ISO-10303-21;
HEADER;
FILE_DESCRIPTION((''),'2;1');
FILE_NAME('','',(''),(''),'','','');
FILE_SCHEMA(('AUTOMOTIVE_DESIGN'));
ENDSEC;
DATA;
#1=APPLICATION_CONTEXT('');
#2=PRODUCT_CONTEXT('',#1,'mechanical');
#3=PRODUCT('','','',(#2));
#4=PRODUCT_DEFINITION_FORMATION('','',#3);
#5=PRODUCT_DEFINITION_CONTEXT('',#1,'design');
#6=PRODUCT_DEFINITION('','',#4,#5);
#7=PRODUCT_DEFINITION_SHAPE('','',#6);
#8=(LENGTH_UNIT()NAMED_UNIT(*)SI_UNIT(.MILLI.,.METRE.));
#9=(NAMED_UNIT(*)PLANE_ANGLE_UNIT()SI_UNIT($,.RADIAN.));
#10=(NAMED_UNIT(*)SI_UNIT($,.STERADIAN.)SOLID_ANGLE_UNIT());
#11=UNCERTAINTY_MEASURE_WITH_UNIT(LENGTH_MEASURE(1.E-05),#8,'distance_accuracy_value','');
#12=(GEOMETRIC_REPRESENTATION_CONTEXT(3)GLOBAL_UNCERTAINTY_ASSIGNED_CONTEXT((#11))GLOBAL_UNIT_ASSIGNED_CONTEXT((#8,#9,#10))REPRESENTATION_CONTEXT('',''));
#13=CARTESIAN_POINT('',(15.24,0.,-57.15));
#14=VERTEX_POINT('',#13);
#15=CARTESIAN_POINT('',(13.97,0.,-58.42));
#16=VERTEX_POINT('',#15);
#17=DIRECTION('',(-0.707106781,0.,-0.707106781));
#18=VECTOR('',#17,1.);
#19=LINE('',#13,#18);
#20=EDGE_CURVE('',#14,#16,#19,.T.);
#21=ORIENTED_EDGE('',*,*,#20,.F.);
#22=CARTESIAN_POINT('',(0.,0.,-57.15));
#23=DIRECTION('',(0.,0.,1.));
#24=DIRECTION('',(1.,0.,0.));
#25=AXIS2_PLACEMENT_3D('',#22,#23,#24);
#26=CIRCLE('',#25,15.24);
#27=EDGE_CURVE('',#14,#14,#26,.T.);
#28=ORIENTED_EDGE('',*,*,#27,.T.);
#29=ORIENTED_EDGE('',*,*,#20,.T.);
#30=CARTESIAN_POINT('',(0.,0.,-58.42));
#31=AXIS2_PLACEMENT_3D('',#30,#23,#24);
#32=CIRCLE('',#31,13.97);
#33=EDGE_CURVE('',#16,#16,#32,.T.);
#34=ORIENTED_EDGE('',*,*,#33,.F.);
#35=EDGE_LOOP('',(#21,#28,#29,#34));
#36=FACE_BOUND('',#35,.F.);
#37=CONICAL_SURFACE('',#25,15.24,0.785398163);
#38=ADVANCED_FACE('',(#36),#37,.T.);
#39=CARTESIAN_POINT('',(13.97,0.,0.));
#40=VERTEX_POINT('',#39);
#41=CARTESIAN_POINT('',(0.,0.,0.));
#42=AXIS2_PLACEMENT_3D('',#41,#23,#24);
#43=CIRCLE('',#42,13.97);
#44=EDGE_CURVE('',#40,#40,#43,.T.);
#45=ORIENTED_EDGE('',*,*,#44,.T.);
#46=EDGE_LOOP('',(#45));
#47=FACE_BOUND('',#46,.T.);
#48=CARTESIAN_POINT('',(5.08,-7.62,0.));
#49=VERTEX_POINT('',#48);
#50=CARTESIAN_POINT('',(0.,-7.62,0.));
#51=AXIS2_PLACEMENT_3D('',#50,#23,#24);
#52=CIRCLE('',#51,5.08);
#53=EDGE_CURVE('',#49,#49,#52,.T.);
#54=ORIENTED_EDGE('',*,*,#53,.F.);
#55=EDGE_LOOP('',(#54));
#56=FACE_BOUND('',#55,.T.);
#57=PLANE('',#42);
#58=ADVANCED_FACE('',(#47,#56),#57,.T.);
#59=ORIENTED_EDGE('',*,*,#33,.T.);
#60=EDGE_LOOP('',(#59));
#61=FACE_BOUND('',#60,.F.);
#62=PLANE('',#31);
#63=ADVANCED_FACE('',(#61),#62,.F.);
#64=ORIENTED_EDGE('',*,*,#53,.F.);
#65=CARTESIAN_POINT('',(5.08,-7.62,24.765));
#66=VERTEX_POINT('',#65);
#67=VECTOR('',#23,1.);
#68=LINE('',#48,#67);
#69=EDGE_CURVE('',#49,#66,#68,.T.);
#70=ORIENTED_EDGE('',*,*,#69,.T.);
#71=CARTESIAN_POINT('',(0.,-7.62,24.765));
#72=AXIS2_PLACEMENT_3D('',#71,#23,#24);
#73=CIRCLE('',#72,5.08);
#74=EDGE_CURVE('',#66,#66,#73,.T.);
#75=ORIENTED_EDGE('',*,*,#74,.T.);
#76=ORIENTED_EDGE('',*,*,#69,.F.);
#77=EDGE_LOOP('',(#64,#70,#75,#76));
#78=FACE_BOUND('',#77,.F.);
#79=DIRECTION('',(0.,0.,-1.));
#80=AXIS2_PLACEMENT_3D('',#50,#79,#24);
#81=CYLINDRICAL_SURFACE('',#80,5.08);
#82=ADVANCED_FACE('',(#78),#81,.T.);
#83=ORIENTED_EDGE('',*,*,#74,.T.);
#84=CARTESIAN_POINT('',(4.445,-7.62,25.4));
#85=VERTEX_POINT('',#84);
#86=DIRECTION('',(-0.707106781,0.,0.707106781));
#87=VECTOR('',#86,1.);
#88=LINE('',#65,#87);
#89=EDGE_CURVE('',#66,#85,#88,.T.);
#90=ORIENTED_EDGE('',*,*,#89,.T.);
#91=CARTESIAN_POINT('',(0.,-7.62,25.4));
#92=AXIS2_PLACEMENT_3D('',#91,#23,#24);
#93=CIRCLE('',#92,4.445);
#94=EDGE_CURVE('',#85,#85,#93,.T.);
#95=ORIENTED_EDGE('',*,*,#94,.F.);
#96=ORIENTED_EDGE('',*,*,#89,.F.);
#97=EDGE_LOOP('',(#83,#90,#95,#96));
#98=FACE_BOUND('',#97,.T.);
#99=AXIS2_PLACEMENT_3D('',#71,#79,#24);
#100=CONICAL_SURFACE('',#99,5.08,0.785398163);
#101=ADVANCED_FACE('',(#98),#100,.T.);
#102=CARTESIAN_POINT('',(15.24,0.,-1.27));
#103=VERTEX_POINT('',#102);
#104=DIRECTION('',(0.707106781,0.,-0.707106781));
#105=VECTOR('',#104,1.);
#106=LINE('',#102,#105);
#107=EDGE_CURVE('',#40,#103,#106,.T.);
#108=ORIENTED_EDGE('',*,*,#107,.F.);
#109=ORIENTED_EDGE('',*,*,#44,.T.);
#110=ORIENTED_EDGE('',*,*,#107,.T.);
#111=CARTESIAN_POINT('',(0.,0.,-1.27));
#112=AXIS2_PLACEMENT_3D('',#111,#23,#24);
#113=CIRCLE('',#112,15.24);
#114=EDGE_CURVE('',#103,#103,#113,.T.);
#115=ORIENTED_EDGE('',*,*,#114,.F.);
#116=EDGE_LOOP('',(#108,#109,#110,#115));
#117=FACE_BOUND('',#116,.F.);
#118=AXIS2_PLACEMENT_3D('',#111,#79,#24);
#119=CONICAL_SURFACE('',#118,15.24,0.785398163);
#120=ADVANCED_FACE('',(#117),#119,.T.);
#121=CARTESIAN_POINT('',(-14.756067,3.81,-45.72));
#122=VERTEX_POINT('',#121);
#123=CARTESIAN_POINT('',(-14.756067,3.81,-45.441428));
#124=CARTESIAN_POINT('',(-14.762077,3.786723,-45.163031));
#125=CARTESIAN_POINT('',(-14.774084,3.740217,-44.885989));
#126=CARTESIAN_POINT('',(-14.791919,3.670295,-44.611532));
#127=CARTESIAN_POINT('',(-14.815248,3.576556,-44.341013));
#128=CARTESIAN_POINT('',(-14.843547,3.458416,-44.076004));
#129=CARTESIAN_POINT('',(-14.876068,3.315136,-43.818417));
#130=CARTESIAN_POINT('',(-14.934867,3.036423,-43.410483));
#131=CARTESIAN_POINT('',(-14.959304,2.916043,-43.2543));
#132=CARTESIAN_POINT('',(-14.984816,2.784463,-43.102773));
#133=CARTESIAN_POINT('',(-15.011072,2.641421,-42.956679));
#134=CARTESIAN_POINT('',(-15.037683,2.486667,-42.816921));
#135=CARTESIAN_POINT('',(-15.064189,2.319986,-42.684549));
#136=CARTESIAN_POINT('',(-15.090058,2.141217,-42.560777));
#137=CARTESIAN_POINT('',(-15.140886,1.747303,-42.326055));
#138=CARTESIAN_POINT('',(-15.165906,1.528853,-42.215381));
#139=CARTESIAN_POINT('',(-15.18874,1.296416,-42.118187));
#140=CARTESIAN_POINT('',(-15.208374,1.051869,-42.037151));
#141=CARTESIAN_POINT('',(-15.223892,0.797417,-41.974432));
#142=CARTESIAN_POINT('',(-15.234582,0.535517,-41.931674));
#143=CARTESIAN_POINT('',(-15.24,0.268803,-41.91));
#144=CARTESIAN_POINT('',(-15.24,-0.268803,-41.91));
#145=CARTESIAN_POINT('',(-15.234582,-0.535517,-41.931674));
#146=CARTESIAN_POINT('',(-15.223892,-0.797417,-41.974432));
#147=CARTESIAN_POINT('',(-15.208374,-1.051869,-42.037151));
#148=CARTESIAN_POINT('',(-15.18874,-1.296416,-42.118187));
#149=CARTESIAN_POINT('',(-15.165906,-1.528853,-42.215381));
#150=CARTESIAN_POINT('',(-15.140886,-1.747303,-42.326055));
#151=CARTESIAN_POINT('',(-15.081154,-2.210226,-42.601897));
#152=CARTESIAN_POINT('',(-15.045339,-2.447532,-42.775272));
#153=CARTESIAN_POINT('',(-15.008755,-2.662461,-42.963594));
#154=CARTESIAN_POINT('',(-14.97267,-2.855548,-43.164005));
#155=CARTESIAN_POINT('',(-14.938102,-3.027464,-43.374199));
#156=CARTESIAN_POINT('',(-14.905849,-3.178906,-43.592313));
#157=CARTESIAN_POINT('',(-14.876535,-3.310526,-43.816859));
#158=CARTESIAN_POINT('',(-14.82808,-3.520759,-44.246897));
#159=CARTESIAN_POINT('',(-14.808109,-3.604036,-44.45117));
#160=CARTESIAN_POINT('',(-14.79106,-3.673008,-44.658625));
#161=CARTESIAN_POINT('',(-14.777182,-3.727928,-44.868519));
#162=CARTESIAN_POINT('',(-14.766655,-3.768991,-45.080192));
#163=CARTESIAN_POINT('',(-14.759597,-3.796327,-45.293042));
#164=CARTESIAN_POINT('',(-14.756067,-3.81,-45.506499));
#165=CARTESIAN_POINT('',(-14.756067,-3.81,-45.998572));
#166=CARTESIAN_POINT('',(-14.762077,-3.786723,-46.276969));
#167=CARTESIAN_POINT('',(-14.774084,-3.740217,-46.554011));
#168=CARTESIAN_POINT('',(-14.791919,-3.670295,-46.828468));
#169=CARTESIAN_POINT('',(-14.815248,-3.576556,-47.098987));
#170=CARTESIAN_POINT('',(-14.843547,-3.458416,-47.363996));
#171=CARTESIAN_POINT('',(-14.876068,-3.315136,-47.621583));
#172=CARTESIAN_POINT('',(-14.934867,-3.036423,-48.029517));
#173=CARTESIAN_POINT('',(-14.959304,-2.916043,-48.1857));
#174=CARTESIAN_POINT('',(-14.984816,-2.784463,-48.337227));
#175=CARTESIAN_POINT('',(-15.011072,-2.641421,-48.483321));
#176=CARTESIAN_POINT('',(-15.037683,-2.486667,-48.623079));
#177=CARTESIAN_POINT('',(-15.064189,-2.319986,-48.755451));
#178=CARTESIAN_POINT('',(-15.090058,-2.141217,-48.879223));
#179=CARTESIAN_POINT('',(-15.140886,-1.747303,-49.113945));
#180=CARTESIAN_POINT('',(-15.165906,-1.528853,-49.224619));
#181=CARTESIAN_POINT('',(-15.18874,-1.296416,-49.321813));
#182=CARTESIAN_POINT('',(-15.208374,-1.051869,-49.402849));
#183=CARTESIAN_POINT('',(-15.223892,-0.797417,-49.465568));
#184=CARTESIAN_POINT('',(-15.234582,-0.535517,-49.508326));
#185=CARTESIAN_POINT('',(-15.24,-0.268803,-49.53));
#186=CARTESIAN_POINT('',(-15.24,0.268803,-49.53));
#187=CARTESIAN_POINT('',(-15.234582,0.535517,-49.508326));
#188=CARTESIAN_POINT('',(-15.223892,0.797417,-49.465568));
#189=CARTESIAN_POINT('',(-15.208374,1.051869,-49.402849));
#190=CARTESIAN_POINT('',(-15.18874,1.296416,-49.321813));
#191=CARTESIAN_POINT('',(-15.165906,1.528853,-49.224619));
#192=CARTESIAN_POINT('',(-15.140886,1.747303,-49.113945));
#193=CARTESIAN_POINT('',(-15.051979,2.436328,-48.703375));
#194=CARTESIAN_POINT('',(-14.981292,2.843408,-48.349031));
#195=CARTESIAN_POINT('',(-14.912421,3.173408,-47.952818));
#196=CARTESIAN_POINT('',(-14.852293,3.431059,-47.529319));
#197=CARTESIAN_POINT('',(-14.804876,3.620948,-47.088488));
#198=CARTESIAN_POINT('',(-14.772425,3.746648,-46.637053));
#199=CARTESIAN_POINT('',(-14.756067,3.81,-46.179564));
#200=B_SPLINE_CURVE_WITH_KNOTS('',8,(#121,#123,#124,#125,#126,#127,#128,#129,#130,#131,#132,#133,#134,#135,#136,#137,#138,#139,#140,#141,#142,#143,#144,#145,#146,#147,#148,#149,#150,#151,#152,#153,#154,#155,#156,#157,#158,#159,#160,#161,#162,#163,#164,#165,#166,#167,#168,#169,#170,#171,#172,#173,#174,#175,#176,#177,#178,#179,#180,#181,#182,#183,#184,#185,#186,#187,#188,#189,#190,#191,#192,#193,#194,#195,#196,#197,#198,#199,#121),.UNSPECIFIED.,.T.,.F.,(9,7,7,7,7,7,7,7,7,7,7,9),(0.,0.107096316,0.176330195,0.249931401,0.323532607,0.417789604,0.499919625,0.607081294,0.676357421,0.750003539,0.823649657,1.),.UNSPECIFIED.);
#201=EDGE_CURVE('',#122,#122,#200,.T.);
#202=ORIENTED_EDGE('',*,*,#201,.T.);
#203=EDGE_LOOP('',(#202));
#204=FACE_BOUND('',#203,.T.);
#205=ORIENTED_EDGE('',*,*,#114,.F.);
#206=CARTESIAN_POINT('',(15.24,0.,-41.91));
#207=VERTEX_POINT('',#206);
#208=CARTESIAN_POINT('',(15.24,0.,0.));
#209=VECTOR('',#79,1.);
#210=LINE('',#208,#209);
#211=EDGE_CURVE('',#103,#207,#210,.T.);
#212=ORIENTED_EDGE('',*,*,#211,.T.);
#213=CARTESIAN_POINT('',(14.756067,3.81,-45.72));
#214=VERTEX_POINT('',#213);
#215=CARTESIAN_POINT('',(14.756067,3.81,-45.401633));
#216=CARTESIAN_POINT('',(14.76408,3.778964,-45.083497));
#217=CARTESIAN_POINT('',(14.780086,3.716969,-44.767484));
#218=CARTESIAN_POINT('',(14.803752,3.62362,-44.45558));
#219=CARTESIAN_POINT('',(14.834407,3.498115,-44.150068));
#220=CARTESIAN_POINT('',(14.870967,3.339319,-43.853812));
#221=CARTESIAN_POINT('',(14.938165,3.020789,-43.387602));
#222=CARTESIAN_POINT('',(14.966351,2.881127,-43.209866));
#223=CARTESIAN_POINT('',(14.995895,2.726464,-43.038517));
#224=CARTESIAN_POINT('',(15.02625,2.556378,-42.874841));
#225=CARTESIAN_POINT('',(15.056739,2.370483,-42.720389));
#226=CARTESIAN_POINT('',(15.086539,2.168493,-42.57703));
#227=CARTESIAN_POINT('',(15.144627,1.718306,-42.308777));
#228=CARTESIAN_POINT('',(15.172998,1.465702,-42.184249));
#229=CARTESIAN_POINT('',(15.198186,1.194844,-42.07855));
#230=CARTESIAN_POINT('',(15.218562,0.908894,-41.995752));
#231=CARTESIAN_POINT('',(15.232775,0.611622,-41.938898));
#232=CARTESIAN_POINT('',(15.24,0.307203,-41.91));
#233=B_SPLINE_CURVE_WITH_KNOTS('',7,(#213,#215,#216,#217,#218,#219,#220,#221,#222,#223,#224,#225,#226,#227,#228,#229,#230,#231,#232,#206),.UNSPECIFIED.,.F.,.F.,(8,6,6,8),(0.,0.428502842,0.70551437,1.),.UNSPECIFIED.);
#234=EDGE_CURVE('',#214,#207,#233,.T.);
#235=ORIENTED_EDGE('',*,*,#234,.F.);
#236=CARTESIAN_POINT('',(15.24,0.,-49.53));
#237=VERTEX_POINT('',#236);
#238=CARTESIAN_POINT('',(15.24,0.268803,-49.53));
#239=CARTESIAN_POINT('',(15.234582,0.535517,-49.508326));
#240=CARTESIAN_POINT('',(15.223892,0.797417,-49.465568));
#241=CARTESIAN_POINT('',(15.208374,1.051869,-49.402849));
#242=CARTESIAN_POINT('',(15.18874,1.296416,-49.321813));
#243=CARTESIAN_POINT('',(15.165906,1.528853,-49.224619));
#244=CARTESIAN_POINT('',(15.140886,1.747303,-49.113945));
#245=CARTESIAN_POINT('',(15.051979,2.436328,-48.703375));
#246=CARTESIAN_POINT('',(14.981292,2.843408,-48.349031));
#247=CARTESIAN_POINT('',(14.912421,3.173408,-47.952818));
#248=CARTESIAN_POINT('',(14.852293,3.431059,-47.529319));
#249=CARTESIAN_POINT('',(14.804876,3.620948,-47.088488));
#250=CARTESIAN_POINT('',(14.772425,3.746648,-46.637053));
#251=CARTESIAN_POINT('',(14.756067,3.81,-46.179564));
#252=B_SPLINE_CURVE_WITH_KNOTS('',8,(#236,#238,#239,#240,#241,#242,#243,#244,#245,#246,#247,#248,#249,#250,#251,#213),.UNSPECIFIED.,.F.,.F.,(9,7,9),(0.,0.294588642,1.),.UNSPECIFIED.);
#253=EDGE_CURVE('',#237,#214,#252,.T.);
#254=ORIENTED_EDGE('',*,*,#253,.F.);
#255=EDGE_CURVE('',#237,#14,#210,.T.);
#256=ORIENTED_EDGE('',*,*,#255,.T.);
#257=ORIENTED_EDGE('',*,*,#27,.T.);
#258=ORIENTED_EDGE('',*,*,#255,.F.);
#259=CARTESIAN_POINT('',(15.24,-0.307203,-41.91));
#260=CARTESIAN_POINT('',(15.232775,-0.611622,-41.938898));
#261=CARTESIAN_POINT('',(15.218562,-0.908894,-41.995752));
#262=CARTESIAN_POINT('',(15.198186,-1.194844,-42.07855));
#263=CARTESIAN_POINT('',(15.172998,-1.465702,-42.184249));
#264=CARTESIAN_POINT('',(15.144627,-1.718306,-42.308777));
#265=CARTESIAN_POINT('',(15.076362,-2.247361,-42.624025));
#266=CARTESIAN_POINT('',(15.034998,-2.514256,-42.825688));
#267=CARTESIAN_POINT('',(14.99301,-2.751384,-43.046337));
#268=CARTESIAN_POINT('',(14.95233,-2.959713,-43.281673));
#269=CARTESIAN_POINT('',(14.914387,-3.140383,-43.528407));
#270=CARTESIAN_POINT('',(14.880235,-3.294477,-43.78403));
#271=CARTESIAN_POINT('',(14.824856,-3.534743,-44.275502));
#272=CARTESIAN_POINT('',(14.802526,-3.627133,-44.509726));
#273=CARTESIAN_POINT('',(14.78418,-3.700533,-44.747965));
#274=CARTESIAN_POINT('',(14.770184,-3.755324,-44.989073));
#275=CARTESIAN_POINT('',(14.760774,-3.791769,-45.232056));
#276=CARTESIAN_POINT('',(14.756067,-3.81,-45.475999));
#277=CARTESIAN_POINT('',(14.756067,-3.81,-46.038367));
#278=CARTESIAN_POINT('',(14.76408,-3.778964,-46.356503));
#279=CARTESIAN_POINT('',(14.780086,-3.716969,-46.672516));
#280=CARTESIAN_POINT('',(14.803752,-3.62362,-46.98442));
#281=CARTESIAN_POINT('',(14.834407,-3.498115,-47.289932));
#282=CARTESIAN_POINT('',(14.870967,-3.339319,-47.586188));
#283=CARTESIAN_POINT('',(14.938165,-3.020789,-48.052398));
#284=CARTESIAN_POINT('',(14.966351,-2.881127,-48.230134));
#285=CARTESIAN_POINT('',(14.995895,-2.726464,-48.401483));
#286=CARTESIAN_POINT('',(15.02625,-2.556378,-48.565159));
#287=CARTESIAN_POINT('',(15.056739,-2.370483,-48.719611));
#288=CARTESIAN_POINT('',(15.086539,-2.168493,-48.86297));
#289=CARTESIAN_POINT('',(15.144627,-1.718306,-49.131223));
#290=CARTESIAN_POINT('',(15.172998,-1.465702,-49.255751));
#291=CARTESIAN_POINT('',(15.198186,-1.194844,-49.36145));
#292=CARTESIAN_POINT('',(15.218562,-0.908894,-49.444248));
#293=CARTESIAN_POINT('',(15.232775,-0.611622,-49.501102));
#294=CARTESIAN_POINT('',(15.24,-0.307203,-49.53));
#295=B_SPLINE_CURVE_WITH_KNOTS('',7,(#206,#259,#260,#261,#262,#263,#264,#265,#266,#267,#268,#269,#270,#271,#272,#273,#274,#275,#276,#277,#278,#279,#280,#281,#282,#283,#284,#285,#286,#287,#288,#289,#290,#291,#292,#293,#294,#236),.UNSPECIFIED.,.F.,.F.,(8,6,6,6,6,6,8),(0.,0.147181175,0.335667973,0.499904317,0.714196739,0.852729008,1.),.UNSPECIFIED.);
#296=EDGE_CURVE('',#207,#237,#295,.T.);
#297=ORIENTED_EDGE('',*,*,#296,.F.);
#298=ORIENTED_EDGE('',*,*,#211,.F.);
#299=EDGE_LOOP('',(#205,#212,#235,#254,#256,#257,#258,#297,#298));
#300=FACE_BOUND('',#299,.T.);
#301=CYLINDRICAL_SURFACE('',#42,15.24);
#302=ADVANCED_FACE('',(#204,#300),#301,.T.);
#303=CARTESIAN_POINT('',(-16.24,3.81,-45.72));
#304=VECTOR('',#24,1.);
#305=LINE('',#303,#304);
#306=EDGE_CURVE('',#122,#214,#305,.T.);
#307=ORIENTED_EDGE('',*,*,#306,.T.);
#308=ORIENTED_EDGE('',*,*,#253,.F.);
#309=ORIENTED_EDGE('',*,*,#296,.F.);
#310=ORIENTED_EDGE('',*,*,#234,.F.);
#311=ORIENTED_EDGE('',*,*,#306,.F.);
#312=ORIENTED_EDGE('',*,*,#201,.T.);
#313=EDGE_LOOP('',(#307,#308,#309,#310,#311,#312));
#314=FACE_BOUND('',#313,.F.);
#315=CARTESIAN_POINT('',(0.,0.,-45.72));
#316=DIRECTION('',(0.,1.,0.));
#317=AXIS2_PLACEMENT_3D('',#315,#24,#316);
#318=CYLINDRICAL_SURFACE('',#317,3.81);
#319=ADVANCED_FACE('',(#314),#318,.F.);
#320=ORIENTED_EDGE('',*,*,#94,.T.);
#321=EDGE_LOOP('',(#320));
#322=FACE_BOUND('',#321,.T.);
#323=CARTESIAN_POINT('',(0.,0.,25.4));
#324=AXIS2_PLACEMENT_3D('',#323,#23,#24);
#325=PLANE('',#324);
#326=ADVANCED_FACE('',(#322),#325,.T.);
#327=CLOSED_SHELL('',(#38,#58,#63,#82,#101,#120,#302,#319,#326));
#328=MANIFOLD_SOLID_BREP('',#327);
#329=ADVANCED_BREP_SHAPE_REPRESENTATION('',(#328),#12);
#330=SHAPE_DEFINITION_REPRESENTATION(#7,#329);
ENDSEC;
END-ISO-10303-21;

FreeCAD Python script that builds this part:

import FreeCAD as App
import Part
import Sketcher
Q = App.Units.Quantity


def edges_at(feature, points):
    """Names of the edges that pass closest to the given points."""
    edges = feature.Shape.Edges
    near = lambda p: min(range(len(edges)), key=lambda i: edges[i].distToShape(Part.Vertex(*p))[0])
    return sorted({f"Edge{near(p) + 1}" for p in points})

doc = App.newDocument("Part")
body = doc.addObject("PartDesign::Body", "Body")

sketch1 = doc.addObject("Sketcher::SketchObject", "Sketch")
body.addObject(sketch1)
sketch1.AttachmentSupport = (doc.XY_Plane, [""])
sketch1.MapMode = "FlatFace"
sketch1.addGeometry(Part.Circle(App.Vector(0, 0, 0), App.Vector(0, 0, 1), 15.24), False)
sketch1.addConstraint([
    Sketcher.Constraint("Coincident", 0, 3, -1, 1),
    Sketcher.Constraint("Diameter", 0, Q("1.2 in")),
])
pad1 = doc.addObject("PartDesign::Pad", "Pad")
body.addObject(pad1)
pad1.Profile = sketch1
pad1.Length = Q("2.3 in")
pad1.Reversed = True

sketch2 = doc.addObject("Sketcher::SketchObject", "Sketch001")
body.addObject(sketch2)
sketch2.AttachmentSupport = (doc.XY_Plane, [""])
sketch2.MapMode = "FlatFace"
sketch2.addGeometry(Part.Circle(App.Vector(0, -7.62, 0), App.Vector(0, 0, 1), 5.08), False)
sketch2.addConstraint([
    Sketcher.Constraint("PointOnObject", 0, 3, -2),
    Sketcher.Constraint("Diameter", 0, Q("0.4 in")),
    Sketcher.Constraint("DistanceY", 0, 3, -1, 1, Q("0.3 in")),
])
pad2 = doc.addObject("PartDesign::Pad", "Pad001")
body.addObject(pad2)
pad2.Profile = sketch2
pad2.Length = Q("1 in")

sketch3 = doc.addObject("Sketcher::SketchObject", "Sketch002")
body.addObject(sketch3)
sketch3.AttachmentSupport = (doc.YZ_Plane, [""])
sketch3.MapMode = "FlatFace"
sketch3.addGeometry(Part.Circle(App.Vector(0, -45.72, 0), App.Vector(0, 0, 1), 3.81), False)
sketch3.addConstraint([
    Sketcher.Constraint("PointOnObject", 0, 3, -2),
    Sketcher.Constraint("Diameter", 0, Q("0.3 in")),
    Sketcher.Constraint("DistanceY", 0, 3, -1, 1, Q("1.8 in")),
])
pocket1 = doc.addObject("PartDesign::Pocket", "Pocket")
body.addObject(pocket1)
pocket1.Profile = sketch3
pocket1.Type = "ThroughAll"
pocket1.Midplane = True
doc.recompute()

chamfer = doc.addObject("PartDesign::Chamfer", "Chamfer")
body.addObject(chamfer)
chamfer.Base = (pocket1, edges_at(pocket1, [(-5.08, -7.62, 25.4)]))
chamfer.Size = Q("0.025 in")
doc.recompute()

chamfer2 = doc.addObject("PartDesign::Chamfer", "Chamfer001")
body.addObject(chamfer2)
chamfer2.Base = (chamfer, edges_at(chamfer, [(-15.24, 0, -58.42), (-15.24, 0, 0)]))
chamfer2.Size = Q("0.05 in")

doc.recompute()
